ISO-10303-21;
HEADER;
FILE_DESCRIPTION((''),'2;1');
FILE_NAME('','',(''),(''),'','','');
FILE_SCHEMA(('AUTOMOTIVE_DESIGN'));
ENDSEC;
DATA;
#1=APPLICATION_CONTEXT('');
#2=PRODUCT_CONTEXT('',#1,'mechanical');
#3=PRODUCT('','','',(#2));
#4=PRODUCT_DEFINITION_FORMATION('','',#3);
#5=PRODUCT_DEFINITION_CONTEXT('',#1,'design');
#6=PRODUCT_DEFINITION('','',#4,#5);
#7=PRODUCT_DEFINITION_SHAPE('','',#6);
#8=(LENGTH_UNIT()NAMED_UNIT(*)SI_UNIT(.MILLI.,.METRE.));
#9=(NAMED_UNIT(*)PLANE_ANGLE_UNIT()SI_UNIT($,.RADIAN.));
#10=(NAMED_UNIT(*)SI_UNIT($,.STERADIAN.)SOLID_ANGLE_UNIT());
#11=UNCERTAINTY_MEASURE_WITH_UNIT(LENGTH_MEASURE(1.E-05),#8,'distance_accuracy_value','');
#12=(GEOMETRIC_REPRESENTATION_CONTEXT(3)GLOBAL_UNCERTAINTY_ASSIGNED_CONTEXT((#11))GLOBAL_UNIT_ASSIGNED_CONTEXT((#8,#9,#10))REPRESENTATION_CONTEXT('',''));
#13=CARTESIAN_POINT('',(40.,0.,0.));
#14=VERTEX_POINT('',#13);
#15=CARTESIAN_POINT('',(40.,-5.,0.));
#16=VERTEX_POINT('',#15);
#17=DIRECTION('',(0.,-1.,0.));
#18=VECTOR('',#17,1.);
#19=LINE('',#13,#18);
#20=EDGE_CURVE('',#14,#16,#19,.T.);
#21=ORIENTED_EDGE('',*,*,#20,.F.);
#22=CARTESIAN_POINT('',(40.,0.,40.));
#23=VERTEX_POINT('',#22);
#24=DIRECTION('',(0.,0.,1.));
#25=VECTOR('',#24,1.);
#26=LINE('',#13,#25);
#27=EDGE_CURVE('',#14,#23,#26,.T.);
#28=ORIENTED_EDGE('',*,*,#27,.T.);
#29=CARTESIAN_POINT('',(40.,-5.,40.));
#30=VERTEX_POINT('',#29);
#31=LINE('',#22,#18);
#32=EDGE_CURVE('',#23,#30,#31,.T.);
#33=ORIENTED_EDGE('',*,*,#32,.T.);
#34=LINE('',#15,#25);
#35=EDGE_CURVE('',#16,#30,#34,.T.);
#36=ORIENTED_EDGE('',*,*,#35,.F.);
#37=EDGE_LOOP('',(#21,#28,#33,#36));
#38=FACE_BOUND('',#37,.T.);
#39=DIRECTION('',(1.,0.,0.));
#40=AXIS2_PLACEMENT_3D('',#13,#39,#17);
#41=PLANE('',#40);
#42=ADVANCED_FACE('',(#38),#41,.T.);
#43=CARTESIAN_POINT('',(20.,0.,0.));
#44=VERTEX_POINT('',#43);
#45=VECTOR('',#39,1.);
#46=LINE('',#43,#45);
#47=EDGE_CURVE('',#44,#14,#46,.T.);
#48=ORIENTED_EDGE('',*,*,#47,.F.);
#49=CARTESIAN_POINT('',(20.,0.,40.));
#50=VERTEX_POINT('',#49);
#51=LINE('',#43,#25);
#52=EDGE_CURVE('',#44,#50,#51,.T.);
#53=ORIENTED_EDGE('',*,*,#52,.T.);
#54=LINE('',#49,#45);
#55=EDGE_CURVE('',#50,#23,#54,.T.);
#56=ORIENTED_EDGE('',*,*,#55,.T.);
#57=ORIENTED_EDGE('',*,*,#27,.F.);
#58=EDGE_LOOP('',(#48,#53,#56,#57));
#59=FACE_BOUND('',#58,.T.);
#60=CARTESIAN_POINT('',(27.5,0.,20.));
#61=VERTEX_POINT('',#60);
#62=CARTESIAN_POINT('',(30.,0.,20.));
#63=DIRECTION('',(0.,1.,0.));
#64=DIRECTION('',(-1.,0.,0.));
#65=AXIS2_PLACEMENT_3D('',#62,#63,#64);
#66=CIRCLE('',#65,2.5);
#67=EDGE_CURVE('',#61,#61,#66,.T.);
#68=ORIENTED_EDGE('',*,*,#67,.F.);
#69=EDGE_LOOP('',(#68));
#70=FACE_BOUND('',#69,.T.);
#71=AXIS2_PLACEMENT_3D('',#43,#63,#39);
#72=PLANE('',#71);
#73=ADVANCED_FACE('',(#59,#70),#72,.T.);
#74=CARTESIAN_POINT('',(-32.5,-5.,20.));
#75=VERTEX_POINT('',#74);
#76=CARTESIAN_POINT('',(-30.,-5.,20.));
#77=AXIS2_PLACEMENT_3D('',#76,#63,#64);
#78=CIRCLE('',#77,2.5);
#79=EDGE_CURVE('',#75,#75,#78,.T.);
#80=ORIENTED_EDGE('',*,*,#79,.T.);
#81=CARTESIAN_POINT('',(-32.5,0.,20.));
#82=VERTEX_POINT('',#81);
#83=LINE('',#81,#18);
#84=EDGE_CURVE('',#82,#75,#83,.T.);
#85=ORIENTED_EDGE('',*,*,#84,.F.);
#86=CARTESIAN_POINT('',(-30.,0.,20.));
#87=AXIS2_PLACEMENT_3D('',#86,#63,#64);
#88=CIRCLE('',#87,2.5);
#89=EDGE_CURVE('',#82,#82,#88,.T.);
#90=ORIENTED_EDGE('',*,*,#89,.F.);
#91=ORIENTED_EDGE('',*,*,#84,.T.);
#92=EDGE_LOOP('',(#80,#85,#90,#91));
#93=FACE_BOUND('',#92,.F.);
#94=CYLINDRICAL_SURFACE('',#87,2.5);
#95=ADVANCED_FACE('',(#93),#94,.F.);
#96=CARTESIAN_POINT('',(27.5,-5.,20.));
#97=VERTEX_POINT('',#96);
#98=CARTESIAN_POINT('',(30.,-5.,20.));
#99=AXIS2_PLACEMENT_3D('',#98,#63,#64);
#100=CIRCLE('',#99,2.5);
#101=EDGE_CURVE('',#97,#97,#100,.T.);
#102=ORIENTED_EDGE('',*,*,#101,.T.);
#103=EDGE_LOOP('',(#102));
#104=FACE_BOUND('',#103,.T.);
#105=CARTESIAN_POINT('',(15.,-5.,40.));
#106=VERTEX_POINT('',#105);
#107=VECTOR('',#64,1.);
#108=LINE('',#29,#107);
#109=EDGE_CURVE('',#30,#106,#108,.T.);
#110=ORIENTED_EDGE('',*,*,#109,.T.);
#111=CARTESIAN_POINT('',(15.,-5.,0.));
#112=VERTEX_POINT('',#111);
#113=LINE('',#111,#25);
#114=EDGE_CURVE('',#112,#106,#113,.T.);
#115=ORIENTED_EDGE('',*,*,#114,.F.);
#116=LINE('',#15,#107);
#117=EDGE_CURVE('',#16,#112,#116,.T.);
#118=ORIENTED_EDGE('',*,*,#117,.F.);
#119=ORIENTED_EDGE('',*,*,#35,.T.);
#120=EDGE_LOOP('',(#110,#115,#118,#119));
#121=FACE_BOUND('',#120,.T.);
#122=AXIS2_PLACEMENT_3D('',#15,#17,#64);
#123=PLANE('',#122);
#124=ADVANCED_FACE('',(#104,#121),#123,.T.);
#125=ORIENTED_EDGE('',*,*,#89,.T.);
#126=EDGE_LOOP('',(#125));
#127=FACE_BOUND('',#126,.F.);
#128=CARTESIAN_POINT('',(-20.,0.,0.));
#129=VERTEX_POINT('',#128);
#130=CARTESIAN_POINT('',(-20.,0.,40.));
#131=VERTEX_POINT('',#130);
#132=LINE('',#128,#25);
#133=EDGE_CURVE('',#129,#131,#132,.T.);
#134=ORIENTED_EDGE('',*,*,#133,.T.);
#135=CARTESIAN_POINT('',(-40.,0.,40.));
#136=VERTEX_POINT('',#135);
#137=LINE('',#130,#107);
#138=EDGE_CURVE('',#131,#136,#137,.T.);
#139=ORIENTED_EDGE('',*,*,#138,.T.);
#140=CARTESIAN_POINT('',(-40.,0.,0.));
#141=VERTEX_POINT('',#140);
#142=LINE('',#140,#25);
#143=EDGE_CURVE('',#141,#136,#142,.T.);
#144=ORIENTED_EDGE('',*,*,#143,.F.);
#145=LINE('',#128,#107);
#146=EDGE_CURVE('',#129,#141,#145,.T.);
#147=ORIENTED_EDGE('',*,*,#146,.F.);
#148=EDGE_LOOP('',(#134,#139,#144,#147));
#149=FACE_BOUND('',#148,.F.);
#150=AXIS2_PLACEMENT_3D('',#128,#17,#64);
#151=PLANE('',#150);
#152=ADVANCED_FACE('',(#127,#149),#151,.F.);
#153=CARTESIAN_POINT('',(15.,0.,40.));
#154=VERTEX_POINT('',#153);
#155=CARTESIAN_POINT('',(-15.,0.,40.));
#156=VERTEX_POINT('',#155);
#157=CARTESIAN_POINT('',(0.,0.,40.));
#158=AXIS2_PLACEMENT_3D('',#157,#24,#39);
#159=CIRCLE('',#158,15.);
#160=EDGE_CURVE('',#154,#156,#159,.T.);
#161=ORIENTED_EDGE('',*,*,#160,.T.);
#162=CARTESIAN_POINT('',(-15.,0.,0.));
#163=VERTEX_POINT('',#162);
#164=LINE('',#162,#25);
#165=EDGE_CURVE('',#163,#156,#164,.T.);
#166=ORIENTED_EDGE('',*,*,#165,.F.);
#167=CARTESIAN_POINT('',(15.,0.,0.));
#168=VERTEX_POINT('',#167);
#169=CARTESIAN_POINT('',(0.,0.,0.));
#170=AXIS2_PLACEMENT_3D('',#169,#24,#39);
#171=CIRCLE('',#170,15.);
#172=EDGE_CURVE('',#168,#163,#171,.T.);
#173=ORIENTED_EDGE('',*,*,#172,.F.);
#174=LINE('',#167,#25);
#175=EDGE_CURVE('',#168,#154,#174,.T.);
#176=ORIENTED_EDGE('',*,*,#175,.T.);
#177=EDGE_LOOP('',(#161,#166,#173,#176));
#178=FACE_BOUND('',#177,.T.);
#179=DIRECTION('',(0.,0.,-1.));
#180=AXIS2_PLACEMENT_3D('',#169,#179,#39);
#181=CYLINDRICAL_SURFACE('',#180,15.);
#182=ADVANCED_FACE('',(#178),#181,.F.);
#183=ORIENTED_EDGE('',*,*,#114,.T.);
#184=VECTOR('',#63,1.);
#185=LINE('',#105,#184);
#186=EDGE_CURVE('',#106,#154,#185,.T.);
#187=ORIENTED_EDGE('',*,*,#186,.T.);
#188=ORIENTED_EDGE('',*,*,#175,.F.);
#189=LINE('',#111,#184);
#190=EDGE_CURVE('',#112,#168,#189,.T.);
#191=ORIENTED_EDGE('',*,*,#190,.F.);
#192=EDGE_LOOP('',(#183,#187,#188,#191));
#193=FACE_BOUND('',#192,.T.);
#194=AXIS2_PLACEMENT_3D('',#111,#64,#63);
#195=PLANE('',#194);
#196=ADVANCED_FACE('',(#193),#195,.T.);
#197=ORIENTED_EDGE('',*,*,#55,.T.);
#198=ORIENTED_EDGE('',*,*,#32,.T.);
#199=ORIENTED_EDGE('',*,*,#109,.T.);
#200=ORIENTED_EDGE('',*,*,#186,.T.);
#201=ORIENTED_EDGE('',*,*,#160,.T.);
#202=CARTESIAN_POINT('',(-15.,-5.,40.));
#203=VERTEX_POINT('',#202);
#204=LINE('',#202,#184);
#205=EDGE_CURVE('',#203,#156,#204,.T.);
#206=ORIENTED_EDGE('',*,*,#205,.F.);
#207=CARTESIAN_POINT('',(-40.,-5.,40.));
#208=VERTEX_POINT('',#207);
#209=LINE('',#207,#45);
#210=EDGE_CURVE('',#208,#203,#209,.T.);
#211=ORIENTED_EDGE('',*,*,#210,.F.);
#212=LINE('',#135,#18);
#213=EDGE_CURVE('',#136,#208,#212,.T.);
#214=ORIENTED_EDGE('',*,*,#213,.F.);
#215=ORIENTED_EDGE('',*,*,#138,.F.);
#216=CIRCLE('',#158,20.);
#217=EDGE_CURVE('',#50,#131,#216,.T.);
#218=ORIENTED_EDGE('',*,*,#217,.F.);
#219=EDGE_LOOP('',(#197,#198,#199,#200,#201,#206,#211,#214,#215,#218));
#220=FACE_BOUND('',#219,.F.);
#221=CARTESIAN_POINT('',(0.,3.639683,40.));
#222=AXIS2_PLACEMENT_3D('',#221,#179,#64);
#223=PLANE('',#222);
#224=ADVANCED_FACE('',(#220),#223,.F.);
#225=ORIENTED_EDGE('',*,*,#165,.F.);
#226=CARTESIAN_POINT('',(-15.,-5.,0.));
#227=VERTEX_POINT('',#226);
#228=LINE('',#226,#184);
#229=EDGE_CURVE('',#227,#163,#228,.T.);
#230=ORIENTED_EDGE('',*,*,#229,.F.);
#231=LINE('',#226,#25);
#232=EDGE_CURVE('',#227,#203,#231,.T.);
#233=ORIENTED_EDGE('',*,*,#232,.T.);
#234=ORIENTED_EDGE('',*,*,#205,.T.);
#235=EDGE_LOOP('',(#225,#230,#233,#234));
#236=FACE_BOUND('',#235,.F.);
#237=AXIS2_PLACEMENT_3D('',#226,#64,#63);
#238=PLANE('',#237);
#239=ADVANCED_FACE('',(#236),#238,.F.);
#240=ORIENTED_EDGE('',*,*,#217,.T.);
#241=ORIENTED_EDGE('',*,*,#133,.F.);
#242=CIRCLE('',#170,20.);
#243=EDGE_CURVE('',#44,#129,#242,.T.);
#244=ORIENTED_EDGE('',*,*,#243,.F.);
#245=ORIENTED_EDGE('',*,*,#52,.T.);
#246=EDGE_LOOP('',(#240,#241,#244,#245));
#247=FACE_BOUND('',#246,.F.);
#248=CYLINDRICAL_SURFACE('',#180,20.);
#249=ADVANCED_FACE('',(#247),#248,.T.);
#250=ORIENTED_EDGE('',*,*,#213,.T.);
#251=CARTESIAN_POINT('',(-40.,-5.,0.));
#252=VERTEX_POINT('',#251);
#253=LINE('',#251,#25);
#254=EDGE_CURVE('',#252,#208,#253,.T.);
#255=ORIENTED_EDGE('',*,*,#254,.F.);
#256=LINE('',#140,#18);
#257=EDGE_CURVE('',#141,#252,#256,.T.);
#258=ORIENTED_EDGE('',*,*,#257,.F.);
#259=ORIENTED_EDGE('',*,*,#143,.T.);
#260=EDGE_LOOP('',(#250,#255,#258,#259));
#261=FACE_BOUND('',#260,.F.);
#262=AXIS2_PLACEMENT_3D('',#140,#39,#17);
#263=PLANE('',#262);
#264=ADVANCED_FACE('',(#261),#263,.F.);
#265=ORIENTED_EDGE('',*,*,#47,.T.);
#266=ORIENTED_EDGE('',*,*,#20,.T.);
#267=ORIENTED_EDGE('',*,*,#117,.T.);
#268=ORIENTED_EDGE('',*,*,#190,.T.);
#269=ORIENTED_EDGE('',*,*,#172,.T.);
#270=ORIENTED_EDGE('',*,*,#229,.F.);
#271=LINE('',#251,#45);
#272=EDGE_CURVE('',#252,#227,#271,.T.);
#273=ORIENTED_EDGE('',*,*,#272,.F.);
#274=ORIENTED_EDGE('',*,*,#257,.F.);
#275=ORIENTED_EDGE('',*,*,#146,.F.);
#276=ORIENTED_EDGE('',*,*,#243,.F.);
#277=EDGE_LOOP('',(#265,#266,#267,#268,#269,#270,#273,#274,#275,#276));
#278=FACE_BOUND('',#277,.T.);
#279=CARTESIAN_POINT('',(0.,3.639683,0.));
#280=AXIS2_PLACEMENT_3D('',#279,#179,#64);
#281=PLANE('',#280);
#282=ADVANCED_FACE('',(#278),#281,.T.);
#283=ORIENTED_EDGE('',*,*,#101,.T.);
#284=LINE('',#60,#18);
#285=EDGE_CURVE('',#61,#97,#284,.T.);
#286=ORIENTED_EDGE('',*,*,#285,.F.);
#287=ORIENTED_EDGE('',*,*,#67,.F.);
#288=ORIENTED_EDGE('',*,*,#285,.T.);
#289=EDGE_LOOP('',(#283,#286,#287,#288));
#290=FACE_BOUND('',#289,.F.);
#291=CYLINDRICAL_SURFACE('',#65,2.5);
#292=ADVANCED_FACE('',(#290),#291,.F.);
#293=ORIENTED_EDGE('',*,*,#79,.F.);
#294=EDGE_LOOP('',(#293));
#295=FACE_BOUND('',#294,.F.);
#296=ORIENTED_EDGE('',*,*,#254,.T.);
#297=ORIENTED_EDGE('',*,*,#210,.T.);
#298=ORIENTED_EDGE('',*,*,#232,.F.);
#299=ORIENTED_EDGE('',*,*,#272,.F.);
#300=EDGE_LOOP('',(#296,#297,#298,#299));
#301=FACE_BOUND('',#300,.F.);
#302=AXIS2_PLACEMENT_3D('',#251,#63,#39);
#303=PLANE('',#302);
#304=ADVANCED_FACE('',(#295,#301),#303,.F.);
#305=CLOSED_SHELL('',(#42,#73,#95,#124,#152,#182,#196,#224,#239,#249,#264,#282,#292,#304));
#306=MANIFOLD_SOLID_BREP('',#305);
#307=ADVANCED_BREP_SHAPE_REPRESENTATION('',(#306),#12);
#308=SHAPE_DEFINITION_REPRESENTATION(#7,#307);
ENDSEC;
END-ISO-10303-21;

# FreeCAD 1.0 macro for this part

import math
import FreeCAD as App
import Part
import Sketcher
from FreeCAD import Vector
Q = App.Units.Quantity

doc = App.newDocument("Part")
body = doc.addObject("PartDesign::Body", "Body")

# Sketch on XY plane
sketch1 = body.newObject("Sketcher::SketchObject", "Sketch")
sketch1.AttachmentSupport = (doc.getObject("XY_Plane"), [""])
sketch1.MapMode = "FlatFace"
sketch1.addGeometry([
    Part.ArcOfCircle(Part.Circle(Vector(0, 0, 0), Vector(0, 0, 1), 15), math.radians(0), math.radians(180)),  # 0
    Part.LineSegment(Vector(15, 0, 0), Vector(15, -5, 0)),  # 1
    Part.LineSegment(Vector(15, -5, 0), Vector(40, -5, 0)),  # 2
    Part.LineSegment(Vector(40, -5, 0), Vector(40, 0, 0)),  # 3
    Part.LineSegment(Vector(40, 0, 0), Vector(20, 0, 0)),  # 4
    Part.ArcOfCircle(Part.Circle(Vector(0, 0, 0), Vector(0, 0, 1), 20), math.radians(0), math.radians(180)),  # 5
    Part.LineSegment(Vector(-20, 0, 0), Vector(-40, 0, 0)),  # 6
    Part.LineSegment(Vector(-40, 0, 0), Vector(-40, -5, 0)),  # 7
    Part.LineSegment(Vector(-40, -5, 0), Vector(-15, -5, 0)),  # 8
    Part.LineSegment(Vector(-15, -5, 0), Vector(-15, 0, 0)),  # 9
], False)
sketch1.addConstraint([
    Sketcher.Constraint("Tangent", 0, 1, 1, 1),
    Sketcher.Constraint("Coincident", 1, 2, 2, 1),
    Sketcher.Constraint("Coincident", 2, 2, 3, 1),
    Sketcher.Constraint("Coincident", 3, 2, 4, 1),
    Sketcher.Constraint("Coincident", 4, 2, 5, 1),
    Sketcher.Constraint("Coincident", 5, 2, 6, 1),
    Sketcher.Constraint("Coincident", 6, 2, 7, 1),
    Sketcher.Constraint("Coincident", 7, 2, 8, 1),
    Sketcher.Constraint("Coincident", 8, 2, 9, 1),
    Sketcher.Constraint("Tangent", 9, 2, 0, 2),
    Sketcher.Constraint("Vertical", 1),
    Sketcher.Constraint("Horizontal", 2),
    Sketcher.Constraint("Vertical", 3),
    Sketcher.Constraint("Horizontal", 4),
    Sketcher.Constraint("Horizontal", 6),
    Sketcher.Constraint("Vertical", 7),
    Sketcher.Constraint("Horizontal", 8),
    Sketcher.Constraint("Vertical", 9),
    Sketcher.Constraint("Coincident", 0, 3, -1, 1),
    Sketcher.Constraint("Coincident", 5, 3, -1, 1),
    Sketcher.Constraint("Symmetric", 3, 2, 6, 2, -1, 1),
    Sketcher.Constraint("PointOnObject", 3, 2, -1),
    Sketcher.Constraint("Horizontal", 2, 2, 7, 2),
    Sketcher.Constraint("Radius", 0, Q("15 mm")),
    Sketcher.Constraint("Radius", 5, Q("20 mm")),
    Sketcher.Constraint("DistanceX", 2, 1, 2, 2, Q("25 mm")),
    Sketcher.Constraint("DistanceY", 1, 2, 1, 1, Q("5 mm")),
])
pad1 = body.newObject("PartDesign::Pad", "Pad")
pad1.Profile = sketch1
pad1.Length = 40

# Sketch on XZ plane
sketch2 = body.newObject("Sketcher::SketchObject", "Sketch001")
sketch2.AttachmentSupport = (doc.getObject("XZ_Plane"), [""])
sketch2.MapMode = "FlatFace"
sketch2.addGeometry([
    Part.Circle(Vector(30, 20, 0), Vector(0, 0, 1), 2.5),
    Part.Circle(Vector(-30, 20, 0), Vector(0, 0, 1), 2.5),
], False)
sketch2.addConstraint([
    Sketcher.Constraint("Equal", 0, 1),
    Sketcher.Constraint("Symmetric", 0, 3, 1, 3, -2),
    Sketcher.Constraint("Diameter", 0, Q("5 mm")),
    Sketcher.Constraint("DistanceX", -1, 1, 0, 3, Q("30 mm")),
    Sketcher.Constraint("DistanceY", -1, 1, 0, 3, Q("20 mm")),
])
pocket1 = body.newObject("PartDesign::Pocket", "Pocket")
pocket1.Profile = sketch2
pocket1.Length = 5
pocket1.Reversed = True

doc.recompute()
